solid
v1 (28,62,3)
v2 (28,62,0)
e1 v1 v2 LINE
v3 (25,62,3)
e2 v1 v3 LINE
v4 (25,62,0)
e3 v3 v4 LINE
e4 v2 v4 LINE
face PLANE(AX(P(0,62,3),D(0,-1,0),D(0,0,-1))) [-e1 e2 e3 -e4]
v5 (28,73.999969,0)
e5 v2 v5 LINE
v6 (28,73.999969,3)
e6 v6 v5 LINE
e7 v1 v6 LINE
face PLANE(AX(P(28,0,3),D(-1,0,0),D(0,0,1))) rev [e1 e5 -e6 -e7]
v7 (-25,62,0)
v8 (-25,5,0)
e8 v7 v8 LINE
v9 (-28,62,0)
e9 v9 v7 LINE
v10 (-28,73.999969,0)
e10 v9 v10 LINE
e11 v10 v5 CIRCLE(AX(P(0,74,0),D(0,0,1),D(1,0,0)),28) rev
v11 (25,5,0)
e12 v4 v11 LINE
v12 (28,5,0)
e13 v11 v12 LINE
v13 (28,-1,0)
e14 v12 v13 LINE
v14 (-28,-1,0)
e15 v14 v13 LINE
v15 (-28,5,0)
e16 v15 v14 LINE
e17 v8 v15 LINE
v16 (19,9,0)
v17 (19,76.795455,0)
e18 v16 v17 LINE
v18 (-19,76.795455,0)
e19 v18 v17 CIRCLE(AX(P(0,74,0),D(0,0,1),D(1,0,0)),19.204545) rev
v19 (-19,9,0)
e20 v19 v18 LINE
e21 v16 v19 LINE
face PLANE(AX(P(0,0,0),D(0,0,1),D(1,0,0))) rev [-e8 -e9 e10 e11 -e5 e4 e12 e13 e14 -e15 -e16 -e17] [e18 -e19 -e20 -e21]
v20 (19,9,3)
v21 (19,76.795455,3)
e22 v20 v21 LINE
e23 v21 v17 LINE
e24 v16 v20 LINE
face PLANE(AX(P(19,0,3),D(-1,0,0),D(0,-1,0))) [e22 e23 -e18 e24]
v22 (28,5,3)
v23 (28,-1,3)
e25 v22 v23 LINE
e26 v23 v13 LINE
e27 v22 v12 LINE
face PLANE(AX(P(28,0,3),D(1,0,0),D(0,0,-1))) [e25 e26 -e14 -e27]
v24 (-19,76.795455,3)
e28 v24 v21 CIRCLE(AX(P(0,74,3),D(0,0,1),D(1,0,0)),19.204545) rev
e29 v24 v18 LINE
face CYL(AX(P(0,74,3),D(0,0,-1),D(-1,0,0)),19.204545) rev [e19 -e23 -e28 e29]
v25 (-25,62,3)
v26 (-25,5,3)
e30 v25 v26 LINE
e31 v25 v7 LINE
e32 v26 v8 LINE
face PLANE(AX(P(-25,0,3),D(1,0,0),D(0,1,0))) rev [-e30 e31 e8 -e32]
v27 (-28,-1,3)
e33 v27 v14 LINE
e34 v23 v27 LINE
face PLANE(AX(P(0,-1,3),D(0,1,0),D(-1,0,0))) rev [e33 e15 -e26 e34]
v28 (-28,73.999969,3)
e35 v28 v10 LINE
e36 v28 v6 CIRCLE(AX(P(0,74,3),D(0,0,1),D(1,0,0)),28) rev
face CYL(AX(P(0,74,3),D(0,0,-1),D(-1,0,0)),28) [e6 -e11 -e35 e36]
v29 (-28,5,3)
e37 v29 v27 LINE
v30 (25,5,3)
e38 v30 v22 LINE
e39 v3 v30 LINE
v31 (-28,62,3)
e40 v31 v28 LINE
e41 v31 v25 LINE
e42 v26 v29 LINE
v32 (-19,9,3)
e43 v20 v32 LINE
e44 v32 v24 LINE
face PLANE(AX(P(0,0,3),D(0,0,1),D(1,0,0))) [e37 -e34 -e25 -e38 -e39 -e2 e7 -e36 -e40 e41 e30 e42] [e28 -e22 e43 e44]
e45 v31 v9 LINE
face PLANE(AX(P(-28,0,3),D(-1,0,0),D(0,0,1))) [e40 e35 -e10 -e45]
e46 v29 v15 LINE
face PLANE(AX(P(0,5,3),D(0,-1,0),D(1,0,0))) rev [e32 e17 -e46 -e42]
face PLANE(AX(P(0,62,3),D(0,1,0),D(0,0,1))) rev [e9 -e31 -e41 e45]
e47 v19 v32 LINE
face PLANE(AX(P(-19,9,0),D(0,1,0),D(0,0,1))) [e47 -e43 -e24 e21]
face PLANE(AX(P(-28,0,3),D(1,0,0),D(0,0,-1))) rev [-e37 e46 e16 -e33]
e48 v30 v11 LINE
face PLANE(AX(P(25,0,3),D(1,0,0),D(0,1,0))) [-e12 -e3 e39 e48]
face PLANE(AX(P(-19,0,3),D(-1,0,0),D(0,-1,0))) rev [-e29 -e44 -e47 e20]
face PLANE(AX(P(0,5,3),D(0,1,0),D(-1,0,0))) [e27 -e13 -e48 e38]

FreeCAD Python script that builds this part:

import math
import FreeCAD as App
import Part
import Sketcher
from FreeCAD import Vector
Q = App.Units.Quantity

doc = App.newDocument("Part")
params = doc.addObject("Spreadsheet::Sheet", "Params")
for row, (alias, value) in enumerate([
    ("sketch1_radius", "28 mm"),
    ("sketch1_width", "9 mm"),
    ("sketch1_width2", "3 mm"),
    ("sketch1_width3", "3 mm"),
    ("sketch1_width4", "3 mm"),
    ("pad1_length", "3 mm"),
    ("sketch2_width", "38 mm"),
    ("sketch2_height", "10 mm"),
    ("pad2_length", "3 mm"),
], start=1):
    params.set(f"A{row}", alias)
    params.set(f"B{row}", "=" + value)
    params.setAlias(f"B{row}", alias)

body = doc.addObject("PartDesign::Body", "Body")

# Sketch on XY plane
sketch1 = doc.addObject("Sketcher::SketchObject", "Sketch")
body.addObject(sketch1)
sketch1.AttachmentSupport = (doc.XY_Plane, [""])
sketch1.MapMode = "FlatFace"
sketch1.addGeometry([
    Part.ArcOfCircle(Part.Circle(Vector(0, 74, 0), Vector(0, 0, 1), 19.204545), math.radians(90), math.radians(171.630168)),  # 0
    Part.ArcOfCircle(Part.Circle(Vector(0, 74, 0), Vector(0, 0, 1), 19.204545), math.radians(8.369832), math.radians(90)),  # 1
    Part.LineSegment(Vector(19, 76.795455, 0), Vector(19, -1, 0)),  # 2
    Part.LineSegment(Vector(19, -1, 0), Vector(28, -1, 0)),  # 3
    Part.LineSegment(Vector(28, -1, 0), Vector(28, 5, 0)),  # 4
    Part.LineSegment(Vector(28, 5, 0), Vector(25, 5, 0)),  # 5
    Part.LineSegment(Vector(25, 5, 0), Vector(25, 62, 0)),  # 6
    Part.LineSegment(Vector(25, 62, 0), Vector(28, 62, 0)),  # 7
    Part.LineSegment(Vector(28, 62, 0), Vector(28, 73.999969, 0)),  # 8
    Part.ArcOfCircle(Part.Circle(Vector(0, 74, 0), Vector(0, 0, 1), 28), math.radians(-0.000063), math.radians(90)),  # 9
    Part.ArcOfCircle(Part.Circle(Vector(0, 74, 0), Vector(0, 0, 1), 28), math.radians(90), math.radians(180.000063)),  # 10
    Part.LineSegment(Vector(-28, 73.999969, 0), Vector(-28, 62, 0)),  # 11
    Part.LineSegment(Vector(-28, 62, 0), Vector(-25, 62, 0)),  # 12
    Part.LineSegment(Vector(-25, 62, 0), Vector(-25, 5, 0)),  # 13
    Part.LineSegment(Vector(-25, 5, 0), Vector(-28, 5, 0)),  # 14
    Part.LineSegment(Vector(-28, 5, 0), Vector(-28, -1, 0)),  # 15
    Part.LineSegment(Vector(-28, -1, 0), Vector(-19, -1, 0)),  # 16
    Part.LineSegment(Vector(-19, -1, 0), Vector(-19, 76.795455, 0)),  # 17
], False)
sketch1.addConstraint([
    Sketcher.Constraint("Coincident", 0, 1, 1, 2),
    Sketcher.Constraint("Coincident", 1, 1, 2, 1),
    Sketcher.Constraint("Coincident", 2, 2, 3, 1),
    Sketcher.Constraint("Coincident", 3, 2, 4, 1),
    Sketcher.Constraint("Coincident", 4, 2, 5, 1),
    Sketcher.Constraint("Coincident", 5, 2, 6, 1),
    Sketcher.Constraint("Coincident", 6, 2, 7, 1),
    Sketcher.Constraint("Coincident", 7, 2, 8, 1),
    Sketcher.Constraint("Coincident", 8, 2, 9, 1),
    Sketcher.Constraint("Coincident", 9, 2, 10, 1),
    Sketcher.Constraint("Coincident", 10, 2, 11, 1),
    Sketcher.Constraint("Coincident", 11, 2, 12, 1),
    Sketcher.Constraint("Coincident", 12, 2, 13, 1),
    Sketcher.Constraint("Coincident", 13, 2, 14, 1),
    Sketcher.Constraint("Coincident", 14, 2, 15, 1),
    Sketcher.Constraint("Coincident", 15, 2, 16, 1),
    Sketcher.Constraint("Coincident", 16, 2, 17, 1),
    Sketcher.Constraint("Coincident", 17, 2, 0, 2),
    Sketcher.Constraint("Vertical", 2),
    Sketcher.Constraint("Horizontal", 3),
    Sketcher.Constraint("Vertical", 4),
    Sketcher.Constraint("Horizontal", 5),
    Sketcher.Constraint("Vertical", 6),
    Sketcher.Constraint("Horizontal", 7),
    Sketcher.Constraint("Vertical", 8),
    Sketcher.Constraint("Vertical", 11),
    Sketcher.Constraint("Horizontal", 12),
    Sketcher.Constraint("Vertical", 13),
    Sketcher.Constraint("Horizontal", 14),
    Sketcher.Constraint("Vertical", 15),
    Sketcher.Constraint("Horizontal", 16),
    Sketcher.Constraint("Vertical", 17),
    Sketcher.Constraint("Coincident", 1, 3, 0, 3),
    Sketcher.Constraint("Coincident", 9, 3, 0, 3),
    Sketcher.Constraint("Coincident", 10, 3, 0, 3),
    Sketcher.Constraint("PointOnObject", 0, 3, -2),
    Sketcher.Constraint("PointOnObject", 0, 1, -2),
    Sketcher.Constraint("PointOnObject", 9, 2, -2),
    Sketcher.Constraint("Radius", 9, Q("28 mm")),
    Sketcher.Constraint("DistanceX", 3, 1, 3, 2, Q("9 mm")),
    Sketcher.Constraint("DistanceX", 5, 2, 5, 1, Q("3 mm")),
    Sketcher.Constraint("DistanceX", 7, 1, 7, 2, Q("3 mm")),
    Sketcher.Constraint("DistanceX", 12, 1, 12, 2, Q("3 mm")),
    Sketcher.Constraint("DistanceX", 14, 2, 14, 1, Q("3 mm")),
    Sketcher.Constraint("DistanceX", 16, 1, 16, 2, Q("9 mm")),
    Sketcher.Constraint("DistanceY", 4, 1, 4, 2, Q("6 mm")),
    Sketcher.Constraint("DistanceY", 6, 1, 6, 2, Q("57 mm")),
    Sketcher.Constraint("DistanceY", 13, 2, 13, 1, Q("57 mm")),
    Sketcher.Constraint("DistanceY", 15, 2, 15, 1, Q("6 mm")),
    Sketcher.Constraint("DistanceY", -1, 1, 0, 3, Q("74 mm")),
    Sketcher.Constraint("DistanceY", 2, 2, -1, 1, Q("1 mm")),
    Sketcher.Constraint("DistanceY", -1, 1, 11, 2, Q("62 mm")),
    Sketcher.Constraint("Radius", 0, Q("19.204545 mm")),
    Sketcher.Constraint("DistanceY", 8, 1, 8, 2, Q("11.999969 mm")),
    Sketcher.Constraint("DistanceY", 11, 2, 11, 1, Q("11.999969 mm")),
])
sketch1.setExpression("Constraints[38]", "Params.sketch1_radius")
sketch1.setExpression("Constraints[39]", "Params.sketch1_width")
sketch1.setExpression("Constraints[40]", "Params.sketch1_width2")
sketch1.setExpression("Constraints[41]", "Params.sketch1_width3")
sketch1.setExpression("Constraints[42]", "Params.sketch1_width4")
pad1 = doc.addObject("PartDesign::Pad", "Pad")
body.addObject(pad1)
pad1.Profile = sketch1
pad1.setExpression("Length", "Params.pad1_length")

# Sketch on XY plane
sketch2 = doc.addObject("Sketcher::SketchObject", "Sketch001")
body.addObject(sketch2)
sketch2.AttachmentSupport = (doc.XY_Plane, [""])
sketch2.MapMode = "FlatFace"
sketch2.AttachmentOffset = App.Placement(Vector(0, 0, 3), App.Rotation())
sketch2.addGeometry([
    Part.LineSegment(Vector(-19, 9, 0), Vector(-19, -1, 0)),
    Part.LineSegment(Vector(-19, -1, 0), Vector(19, -1, 0)),
    Part.LineSegment(Vector(19, -1, 0), Vector(19, 9, 0)),
    Part.LineSegment(Vector(19, 9, 0), Vector(-19, 9, 0)),
], False)
sketch2.addConstraint([
    Sketcher.Constraint("Coincident", 0, 2, 1, 1),
    Sketcher.Constraint("Coincident", 1, 2, 2, 1),
    Sketcher.Constraint("Coincident", 2, 2, 3, 1),
    Sketcher.Constraint("Coincident", 3, 2, 0, 1),
    Sketcher.Constraint("Vertical", 0),
    Sketcher.Constraint("Horizontal", 1),
    Sketcher.Constraint("Vertical", 2),
    Sketcher.Constraint("Horizontal", 3),
    Sketcher.Constraint("DistanceX", 1, 1, 1, 2, Q("38 mm")),
    Sketcher.Constraint("DistanceY", 0, 2, 0, 1, Q("10 mm")),
    Sketcher.Constraint("DistanceX", 0, 2, -1, 1, Q("19 mm")),
    Sketcher.Constraint("DistanceY", 0, 2, -1, 1, Q("1 mm")),
])
sketch2.setExpression("Constraints[8]", "Params.sketch2_width")
sketch2.setExpression("Constraints[9]", "Params.sketch2_height")
pad2 = doc.addObject("PartDesign::Pad", "Pad001")
body.addObject(pad2)
pad2.Profile = sketch2
pad2.setExpression("Length", "Params.pad2_length")
pad2.Reversed = True

doc.recompute()
